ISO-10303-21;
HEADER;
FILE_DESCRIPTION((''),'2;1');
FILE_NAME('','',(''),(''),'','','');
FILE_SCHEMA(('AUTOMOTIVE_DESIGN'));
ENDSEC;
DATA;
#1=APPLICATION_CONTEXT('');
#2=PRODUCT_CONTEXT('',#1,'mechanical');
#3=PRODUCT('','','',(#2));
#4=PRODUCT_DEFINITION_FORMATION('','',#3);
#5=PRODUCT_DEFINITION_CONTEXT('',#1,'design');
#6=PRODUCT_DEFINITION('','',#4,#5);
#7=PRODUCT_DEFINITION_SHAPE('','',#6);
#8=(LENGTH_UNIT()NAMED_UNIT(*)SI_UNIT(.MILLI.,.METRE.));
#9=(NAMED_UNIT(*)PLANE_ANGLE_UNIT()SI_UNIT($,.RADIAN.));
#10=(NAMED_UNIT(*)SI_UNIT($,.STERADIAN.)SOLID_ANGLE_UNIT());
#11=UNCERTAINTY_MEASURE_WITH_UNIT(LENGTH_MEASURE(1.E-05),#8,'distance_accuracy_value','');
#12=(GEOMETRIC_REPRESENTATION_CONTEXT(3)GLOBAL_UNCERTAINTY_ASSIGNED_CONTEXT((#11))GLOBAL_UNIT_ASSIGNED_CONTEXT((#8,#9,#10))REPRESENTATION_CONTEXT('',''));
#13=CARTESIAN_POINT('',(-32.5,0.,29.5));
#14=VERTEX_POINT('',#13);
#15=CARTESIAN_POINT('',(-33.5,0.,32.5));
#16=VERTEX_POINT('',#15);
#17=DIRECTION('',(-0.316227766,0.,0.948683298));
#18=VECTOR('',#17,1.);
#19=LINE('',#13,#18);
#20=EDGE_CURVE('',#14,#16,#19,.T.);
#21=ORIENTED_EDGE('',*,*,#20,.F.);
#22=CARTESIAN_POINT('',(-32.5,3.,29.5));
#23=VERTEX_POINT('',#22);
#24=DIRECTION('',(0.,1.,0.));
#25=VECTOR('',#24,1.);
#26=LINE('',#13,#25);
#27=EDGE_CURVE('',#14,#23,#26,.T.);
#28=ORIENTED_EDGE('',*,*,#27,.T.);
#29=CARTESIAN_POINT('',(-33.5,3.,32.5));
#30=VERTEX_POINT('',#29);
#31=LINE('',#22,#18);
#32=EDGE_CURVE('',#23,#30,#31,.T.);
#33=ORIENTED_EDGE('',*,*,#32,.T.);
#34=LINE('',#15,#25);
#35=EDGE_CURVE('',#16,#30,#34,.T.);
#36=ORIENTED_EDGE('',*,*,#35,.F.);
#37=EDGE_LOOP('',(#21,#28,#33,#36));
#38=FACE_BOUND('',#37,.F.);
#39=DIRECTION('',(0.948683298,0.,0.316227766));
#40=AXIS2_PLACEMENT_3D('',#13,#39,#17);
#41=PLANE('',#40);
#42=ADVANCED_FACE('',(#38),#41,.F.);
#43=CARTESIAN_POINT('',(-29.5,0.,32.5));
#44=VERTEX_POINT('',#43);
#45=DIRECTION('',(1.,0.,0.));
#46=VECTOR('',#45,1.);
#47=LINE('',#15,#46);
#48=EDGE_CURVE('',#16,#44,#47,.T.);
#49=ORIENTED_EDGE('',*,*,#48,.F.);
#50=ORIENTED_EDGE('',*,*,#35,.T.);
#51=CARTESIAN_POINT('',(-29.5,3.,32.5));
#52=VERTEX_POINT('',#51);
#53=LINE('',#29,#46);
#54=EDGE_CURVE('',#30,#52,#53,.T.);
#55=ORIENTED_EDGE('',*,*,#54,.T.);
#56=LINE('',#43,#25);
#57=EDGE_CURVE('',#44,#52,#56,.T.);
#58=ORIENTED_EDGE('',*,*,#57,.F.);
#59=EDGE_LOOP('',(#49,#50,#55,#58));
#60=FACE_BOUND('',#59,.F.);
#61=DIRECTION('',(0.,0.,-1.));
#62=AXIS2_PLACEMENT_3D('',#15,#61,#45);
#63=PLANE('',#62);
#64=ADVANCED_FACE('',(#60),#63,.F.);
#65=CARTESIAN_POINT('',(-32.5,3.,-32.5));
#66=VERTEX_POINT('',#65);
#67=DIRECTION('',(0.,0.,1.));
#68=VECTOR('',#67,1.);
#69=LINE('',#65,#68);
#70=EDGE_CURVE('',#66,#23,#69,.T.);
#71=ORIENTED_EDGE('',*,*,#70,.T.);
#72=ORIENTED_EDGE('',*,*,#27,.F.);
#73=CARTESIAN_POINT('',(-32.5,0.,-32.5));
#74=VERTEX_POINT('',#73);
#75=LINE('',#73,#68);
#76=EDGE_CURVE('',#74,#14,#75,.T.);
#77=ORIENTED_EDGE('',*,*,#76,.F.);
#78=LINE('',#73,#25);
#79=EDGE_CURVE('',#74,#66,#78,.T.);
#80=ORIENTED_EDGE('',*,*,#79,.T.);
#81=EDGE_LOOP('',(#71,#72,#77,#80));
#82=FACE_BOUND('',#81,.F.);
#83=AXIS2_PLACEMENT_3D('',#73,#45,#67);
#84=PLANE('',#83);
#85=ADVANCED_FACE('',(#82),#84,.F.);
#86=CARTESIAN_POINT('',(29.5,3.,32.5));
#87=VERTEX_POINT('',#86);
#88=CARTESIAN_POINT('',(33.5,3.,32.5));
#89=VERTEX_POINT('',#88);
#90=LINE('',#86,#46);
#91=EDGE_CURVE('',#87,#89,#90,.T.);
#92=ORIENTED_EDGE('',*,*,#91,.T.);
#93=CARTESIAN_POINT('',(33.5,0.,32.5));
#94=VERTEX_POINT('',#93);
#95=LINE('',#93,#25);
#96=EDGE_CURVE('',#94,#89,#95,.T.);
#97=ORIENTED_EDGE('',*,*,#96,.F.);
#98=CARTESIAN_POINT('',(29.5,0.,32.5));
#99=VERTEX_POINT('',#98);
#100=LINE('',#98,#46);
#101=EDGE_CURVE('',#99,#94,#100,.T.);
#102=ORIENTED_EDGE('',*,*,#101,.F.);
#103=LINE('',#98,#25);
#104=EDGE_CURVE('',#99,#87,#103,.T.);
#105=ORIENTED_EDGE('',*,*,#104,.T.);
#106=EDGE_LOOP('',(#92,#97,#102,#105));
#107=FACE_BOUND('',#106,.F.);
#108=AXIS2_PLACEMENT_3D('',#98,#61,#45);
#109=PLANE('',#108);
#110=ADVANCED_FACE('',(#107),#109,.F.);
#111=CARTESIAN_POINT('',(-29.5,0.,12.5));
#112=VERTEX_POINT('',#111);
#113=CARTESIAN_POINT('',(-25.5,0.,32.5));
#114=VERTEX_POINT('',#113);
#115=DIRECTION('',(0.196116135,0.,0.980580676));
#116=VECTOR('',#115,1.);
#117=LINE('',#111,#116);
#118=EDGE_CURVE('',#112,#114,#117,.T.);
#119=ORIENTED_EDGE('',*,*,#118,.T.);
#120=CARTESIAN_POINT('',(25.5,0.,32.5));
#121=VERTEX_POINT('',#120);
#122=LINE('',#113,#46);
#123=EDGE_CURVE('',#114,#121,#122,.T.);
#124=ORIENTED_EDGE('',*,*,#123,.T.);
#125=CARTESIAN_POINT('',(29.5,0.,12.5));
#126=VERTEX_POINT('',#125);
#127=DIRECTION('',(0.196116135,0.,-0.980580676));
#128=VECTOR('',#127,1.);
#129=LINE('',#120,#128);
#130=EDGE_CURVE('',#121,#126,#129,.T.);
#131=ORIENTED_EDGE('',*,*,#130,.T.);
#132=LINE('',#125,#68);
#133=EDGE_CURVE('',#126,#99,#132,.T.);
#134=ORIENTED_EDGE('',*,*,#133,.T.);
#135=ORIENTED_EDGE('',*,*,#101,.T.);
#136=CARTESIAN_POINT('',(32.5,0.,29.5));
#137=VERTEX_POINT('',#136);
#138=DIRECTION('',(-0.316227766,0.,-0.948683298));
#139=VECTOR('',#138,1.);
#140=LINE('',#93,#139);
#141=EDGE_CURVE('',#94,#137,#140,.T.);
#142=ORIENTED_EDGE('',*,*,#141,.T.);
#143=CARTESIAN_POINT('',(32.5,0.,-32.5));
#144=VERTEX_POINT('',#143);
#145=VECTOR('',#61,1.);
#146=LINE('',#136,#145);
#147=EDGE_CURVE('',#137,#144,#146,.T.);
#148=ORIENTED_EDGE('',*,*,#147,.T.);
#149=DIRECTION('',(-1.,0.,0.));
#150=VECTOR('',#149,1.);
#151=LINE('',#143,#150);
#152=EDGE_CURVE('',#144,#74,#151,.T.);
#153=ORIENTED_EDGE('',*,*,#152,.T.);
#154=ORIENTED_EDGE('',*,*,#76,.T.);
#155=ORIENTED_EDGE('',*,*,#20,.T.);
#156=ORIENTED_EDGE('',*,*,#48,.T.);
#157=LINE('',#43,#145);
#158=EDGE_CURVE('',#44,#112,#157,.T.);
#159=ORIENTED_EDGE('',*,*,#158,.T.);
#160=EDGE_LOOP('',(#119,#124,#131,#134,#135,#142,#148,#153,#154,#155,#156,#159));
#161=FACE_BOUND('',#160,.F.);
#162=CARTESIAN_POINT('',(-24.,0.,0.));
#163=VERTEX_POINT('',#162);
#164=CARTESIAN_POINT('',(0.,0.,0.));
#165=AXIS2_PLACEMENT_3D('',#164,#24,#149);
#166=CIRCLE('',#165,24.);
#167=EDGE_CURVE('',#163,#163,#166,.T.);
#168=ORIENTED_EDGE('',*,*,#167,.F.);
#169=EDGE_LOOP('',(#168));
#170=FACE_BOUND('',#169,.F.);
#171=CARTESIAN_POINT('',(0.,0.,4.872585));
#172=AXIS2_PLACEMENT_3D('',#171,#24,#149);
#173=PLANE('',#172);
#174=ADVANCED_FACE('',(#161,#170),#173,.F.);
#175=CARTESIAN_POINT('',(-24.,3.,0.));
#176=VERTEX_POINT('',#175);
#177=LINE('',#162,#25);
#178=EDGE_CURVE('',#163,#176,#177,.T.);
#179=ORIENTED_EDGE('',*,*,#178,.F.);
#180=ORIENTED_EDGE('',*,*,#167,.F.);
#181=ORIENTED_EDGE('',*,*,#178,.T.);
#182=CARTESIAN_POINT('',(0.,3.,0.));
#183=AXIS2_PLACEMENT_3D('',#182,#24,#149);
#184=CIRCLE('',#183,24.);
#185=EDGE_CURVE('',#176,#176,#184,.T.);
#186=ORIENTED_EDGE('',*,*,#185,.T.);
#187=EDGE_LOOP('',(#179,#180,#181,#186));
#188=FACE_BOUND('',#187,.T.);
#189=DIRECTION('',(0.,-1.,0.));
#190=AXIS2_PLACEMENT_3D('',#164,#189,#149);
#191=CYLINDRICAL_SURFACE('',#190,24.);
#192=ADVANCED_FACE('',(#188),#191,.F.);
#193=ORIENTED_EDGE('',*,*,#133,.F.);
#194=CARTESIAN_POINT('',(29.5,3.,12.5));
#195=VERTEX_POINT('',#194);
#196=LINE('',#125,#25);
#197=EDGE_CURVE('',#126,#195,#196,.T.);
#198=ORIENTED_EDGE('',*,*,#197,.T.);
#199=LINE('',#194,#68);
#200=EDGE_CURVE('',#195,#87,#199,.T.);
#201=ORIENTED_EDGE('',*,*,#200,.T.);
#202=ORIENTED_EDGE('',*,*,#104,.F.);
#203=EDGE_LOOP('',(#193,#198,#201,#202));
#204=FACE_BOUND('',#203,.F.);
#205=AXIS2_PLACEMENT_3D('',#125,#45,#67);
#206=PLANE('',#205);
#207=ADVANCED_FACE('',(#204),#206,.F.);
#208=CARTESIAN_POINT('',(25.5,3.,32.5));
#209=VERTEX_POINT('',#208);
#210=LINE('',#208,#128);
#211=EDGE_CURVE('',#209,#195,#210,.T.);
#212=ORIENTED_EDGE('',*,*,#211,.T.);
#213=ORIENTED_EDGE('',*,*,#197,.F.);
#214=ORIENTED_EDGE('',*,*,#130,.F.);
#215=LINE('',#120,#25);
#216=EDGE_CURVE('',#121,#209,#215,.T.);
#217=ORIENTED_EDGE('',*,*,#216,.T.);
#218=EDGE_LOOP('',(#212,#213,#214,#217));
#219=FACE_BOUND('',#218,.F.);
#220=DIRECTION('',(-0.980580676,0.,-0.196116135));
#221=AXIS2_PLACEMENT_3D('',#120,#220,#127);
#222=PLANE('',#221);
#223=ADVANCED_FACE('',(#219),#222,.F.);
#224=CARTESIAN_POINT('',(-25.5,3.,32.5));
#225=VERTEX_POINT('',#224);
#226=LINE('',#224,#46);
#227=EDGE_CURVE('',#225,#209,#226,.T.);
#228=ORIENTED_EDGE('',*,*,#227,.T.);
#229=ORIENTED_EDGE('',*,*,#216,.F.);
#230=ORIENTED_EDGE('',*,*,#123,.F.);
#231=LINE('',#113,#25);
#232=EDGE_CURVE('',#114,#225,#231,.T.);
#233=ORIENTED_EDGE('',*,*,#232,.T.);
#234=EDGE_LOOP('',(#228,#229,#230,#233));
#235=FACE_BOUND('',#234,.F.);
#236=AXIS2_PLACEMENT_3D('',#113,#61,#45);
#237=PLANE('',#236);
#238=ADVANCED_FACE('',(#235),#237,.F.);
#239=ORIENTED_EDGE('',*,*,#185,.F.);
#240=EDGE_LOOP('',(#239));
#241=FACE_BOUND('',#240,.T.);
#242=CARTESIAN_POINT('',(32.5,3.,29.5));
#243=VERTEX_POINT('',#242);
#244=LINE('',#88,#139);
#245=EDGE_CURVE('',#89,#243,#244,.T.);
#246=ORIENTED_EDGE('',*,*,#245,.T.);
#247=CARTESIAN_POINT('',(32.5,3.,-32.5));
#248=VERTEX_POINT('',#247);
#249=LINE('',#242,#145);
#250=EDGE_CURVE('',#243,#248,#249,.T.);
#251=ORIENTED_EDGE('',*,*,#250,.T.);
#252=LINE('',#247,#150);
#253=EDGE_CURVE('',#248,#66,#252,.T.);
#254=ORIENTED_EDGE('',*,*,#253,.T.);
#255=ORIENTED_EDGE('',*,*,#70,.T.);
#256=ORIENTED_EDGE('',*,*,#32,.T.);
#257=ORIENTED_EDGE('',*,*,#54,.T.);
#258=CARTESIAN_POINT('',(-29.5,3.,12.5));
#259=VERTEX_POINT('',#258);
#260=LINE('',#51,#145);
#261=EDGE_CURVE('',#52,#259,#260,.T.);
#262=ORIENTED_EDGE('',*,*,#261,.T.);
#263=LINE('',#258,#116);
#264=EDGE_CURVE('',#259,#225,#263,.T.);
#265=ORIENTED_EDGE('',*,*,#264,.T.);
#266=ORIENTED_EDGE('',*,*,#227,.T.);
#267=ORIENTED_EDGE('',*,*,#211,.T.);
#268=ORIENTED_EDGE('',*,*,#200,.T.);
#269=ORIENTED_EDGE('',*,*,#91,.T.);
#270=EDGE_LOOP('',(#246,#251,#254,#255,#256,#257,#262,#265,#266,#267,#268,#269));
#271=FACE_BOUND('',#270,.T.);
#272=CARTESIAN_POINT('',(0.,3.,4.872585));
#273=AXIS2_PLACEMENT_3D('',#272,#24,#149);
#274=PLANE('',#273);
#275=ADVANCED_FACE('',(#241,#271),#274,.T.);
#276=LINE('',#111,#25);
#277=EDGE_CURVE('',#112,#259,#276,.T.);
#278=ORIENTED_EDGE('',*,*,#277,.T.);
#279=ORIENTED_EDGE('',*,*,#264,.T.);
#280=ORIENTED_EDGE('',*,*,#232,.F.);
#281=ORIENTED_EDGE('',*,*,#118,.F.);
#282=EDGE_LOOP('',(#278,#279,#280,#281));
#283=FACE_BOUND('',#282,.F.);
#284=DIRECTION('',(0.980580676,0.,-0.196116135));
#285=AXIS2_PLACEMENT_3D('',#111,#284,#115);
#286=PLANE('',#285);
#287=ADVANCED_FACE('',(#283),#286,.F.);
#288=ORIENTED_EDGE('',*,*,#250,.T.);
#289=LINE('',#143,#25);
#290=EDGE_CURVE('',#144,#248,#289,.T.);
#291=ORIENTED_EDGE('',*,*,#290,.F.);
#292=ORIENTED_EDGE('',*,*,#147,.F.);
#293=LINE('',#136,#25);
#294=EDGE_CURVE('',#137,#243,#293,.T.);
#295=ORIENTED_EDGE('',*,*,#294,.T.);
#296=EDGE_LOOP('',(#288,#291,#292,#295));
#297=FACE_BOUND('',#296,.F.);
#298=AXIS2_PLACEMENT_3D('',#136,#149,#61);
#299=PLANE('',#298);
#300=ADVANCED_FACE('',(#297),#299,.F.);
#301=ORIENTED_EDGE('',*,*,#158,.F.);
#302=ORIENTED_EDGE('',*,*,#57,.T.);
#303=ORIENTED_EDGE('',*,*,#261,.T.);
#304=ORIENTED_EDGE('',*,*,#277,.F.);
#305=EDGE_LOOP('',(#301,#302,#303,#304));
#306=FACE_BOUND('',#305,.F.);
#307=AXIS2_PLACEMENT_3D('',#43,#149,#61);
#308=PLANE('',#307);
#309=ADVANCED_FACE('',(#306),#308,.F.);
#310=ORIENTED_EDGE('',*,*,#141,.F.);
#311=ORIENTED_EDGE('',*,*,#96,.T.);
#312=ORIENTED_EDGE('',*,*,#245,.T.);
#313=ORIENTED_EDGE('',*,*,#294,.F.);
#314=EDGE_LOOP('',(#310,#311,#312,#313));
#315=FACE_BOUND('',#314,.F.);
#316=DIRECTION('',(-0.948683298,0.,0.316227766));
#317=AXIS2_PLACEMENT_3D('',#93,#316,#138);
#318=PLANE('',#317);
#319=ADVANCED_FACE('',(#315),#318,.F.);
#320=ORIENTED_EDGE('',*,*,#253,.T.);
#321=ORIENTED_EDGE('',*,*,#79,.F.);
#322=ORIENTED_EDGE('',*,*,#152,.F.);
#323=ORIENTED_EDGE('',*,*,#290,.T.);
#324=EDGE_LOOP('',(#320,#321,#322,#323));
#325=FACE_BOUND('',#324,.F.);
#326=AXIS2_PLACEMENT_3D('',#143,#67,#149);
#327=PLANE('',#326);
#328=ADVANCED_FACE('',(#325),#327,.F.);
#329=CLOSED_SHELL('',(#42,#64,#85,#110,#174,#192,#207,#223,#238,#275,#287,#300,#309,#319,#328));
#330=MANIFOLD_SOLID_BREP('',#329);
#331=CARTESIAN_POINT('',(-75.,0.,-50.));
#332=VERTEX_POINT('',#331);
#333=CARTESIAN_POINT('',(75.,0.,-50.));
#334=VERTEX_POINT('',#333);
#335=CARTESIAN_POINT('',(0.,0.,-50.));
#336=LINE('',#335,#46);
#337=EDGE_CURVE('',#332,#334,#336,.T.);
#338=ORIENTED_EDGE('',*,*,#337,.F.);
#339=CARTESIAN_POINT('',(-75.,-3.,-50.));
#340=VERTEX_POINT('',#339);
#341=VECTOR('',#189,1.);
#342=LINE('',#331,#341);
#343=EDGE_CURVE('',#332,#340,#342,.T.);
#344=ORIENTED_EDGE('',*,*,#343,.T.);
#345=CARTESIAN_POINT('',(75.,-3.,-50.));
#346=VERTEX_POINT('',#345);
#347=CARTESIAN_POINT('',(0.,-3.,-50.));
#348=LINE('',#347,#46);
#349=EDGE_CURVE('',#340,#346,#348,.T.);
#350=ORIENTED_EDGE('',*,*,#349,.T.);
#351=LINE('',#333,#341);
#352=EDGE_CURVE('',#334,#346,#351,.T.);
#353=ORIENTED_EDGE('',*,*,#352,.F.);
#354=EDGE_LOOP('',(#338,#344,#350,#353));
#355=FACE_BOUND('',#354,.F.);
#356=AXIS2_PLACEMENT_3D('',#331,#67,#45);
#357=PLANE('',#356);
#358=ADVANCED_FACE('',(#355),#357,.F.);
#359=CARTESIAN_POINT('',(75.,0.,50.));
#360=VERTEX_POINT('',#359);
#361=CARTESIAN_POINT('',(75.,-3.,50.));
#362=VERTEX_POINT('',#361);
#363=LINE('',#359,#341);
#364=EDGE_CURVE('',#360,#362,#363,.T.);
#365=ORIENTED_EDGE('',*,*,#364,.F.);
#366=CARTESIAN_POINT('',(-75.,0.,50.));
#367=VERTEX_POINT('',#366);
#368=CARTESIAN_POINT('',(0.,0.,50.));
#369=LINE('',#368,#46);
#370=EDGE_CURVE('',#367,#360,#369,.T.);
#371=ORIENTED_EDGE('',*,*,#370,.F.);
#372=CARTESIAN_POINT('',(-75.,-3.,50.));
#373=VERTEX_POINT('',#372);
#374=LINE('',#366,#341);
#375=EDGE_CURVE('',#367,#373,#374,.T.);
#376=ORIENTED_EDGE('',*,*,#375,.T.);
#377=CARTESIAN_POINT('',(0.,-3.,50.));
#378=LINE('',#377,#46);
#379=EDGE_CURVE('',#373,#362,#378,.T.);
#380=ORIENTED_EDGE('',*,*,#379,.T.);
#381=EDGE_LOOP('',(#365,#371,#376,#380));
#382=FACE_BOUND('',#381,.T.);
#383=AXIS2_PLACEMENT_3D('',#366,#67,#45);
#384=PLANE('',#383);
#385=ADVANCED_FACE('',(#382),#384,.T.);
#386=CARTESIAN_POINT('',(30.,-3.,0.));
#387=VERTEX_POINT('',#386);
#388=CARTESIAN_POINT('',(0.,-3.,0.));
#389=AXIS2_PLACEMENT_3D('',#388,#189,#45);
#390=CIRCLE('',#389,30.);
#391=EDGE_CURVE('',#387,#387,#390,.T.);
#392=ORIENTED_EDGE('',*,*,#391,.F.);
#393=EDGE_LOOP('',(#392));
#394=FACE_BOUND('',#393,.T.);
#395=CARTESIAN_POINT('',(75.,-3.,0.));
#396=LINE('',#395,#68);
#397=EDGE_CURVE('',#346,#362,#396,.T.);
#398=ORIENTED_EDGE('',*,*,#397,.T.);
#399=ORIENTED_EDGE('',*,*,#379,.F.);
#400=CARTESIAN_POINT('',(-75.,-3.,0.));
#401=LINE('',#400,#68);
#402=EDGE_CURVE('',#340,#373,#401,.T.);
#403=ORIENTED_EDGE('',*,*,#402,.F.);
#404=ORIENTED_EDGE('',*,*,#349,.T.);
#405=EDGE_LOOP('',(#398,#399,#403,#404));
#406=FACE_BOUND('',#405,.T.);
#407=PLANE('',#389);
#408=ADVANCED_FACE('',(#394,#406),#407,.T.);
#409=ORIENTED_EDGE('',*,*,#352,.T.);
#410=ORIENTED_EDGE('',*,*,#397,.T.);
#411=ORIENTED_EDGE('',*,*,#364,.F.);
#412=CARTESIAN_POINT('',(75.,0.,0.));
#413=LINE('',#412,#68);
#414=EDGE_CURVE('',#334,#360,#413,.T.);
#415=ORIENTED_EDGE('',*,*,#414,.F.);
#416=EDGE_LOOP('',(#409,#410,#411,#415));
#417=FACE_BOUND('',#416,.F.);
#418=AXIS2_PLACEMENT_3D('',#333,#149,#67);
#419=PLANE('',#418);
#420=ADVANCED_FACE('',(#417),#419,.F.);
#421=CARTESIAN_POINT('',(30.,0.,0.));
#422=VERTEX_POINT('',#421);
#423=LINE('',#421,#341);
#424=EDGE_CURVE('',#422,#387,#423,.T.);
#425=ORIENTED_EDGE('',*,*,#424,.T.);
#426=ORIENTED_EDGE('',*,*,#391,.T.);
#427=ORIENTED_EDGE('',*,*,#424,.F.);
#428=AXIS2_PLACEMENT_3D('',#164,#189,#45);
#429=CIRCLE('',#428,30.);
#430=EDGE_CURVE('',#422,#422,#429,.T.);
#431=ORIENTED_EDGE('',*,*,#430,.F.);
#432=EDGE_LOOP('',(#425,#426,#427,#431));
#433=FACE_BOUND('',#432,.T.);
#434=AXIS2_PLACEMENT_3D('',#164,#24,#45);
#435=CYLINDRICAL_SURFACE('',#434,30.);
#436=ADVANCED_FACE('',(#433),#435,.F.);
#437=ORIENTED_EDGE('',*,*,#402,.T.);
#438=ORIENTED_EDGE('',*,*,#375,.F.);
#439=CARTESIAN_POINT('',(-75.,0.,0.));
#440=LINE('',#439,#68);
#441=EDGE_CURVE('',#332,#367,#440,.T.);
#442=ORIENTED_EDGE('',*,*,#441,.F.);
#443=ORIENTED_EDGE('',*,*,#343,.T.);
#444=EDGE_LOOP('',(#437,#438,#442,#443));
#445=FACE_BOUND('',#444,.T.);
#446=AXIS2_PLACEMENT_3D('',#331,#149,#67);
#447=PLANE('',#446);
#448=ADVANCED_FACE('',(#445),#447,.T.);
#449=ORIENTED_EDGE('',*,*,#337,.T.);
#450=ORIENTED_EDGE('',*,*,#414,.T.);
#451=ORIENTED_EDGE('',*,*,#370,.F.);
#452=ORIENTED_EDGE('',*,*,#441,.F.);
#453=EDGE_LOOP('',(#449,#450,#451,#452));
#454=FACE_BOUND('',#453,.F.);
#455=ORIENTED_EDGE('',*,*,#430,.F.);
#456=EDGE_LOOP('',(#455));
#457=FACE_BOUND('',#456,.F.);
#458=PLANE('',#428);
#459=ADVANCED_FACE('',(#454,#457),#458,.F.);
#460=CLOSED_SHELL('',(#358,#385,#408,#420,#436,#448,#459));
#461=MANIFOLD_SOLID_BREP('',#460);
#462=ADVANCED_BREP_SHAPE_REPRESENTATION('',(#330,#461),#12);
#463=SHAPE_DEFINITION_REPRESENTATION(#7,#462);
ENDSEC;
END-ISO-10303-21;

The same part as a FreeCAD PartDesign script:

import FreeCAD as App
import Part
import Sketcher

V = App.Vector
Q = App.Units.Quantity

doc = App.newDocument("Part")
body = doc.addObject("PartDesign::Body", "Body")

# Sketch on XZ plane
sketch1 = body.newObject("Sketcher::SketchObject", "Sketch")
sketch1.AttachmentSupport = (doc.getObject("XZ_Plane"), [""])
sketch1.MapMode = "FlatFace"
sketch1.addGeometry([
    Part.LineSegment(V(-75, 50, 0), V(-75, -50, 0)),  # 0
    Part.LineSegment(V(-75, -50, 0), V(75, -50, 0)),  # 1
    Part.LineSegment(V(75, -50, 0), V(75, 50, 0)),  # 2
    Part.LineSegment(V(75, 50, 0), V(-75, 50, 0)),  # 3
    Part.Circle(V(0, 0, 0), V(0, 0, 1), 30),  # 4
], False)
sketch1.addConstraint([
    Sketcher.Constraint("Coincident", 0, 2, 1, 1),
    Sketcher.Constraint("Coincident", 1, 2, 2, 1),
    Sketcher.Constraint("Coincident", 2, 2, 3, 1),
    Sketcher.Constraint("Coincident", 3, 2, 0, 1),
    Sketcher.Constraint("Vertical", 0),
    Sketcher.Constraint("Horizontal", 1),
    Sketcher.Constraint("Vertical", 2),
    Sketcher.Constraint("Horizontal", 3),
    Sketcher.Constraint("Coincident", 4, 3, -1, 1),
    Sketcher.Constraint("Symmetric", 0, 2, 2, 2, -1, 1),
    Sketcher.Constraint("Diameter", 4, Q("60 mm")),
    Sketcher.Constraint("DistanceX", 1, 1, 1, 2, Q("150 mm")),
    Sketcher.Constraint("DistanceY", 0, 2, 0, 1, Q("100 mm")),
])
pad1 = body.newObject("PartDesign::Pad", "Pad")
pad1.Profile = sketch1
pad1.Length = 3
body2 = doc.addObject("PartDesign::Body", "Body001")

# Sketch on XZ plane
sketch2 = body2.newObject("Sketcher::SketchObject", "Sketch001")
sketch2.AttachmentSupport = (doc.getObject("XZ_Plane001"), [""])
sketch2.MapMode = "FlatFace"
sketch2.addGeometry([
    Part.LineSegment(V(29.5, 32.5, 0), V(33.5, 32.5, 0)),  # 0
    Part.LineSegment(V(33.5, 32.5, 0), V(32.5, 29.5, 0)),  # 1
    Part.LineSegment(V(32.5, 29.5, 0), V(32.5, -32.5, 0)),  # 2
    Part.LineSegment(V(32.5, -32.5, 0), V(-32.5, -32.5, 0)),  # 3
    Part.LineSegment(V(-32.5, -32.5, 0), V(-32.5, 29.5, 0)),  # 4
    Part.LineSegment(V(-32.5, 29.5, 0), V(-33.5, 32.5, 0)),  # 5
    Part.LineSegment(V(-33.5, 32.5, 0), V(-29.5, 32.5, 0)),  # 6
    Part.LineSegment(V(-29.5, 32.5, 0), V(-29.5, 12.5, 0)),  # 7
    Part.LineSegment(V(-29.5, 12.5, 0), V(-25.5, 32.5, 0)),  # 8
    Part.LineSegment(V(-25.5, 32.5, 0), V(25.5, 32.5, 0)),  # 9
    Part.LineSegment(V(25.5, 32.5, 0), V(29.5, 12.5, 0)),  # 10
    Part.LineSegment(V(29.5, 12.5, 0), V(29.5, 32.5, 0)),  # 11
    Part.Circle(V(0, 0, 0), V(0, 0, 1), 24),  # 12
], False)
sketch2.addConstraint([
    Sketcher.Constraint("Coincident", 0, 2, 1, 1),
    Sketcher.Constraint("Coincident", 1, 2, 2, 1),
    Sketcher.Constraint("Coincident", 2, 2, 3, 1),
    Sketcher.Constraint("Coincident", 3, 2, 4, 1),
    Sketcher.Constraint("Coincident", 4, 2, 5, 1),
    Sketcher.Constraint("Coincident", 5, 2, 6, 1),
    Sketcher.Constraint("Coincident", 6, 2, 7, 1),
    Sketcher.Constraint("Coincident", 7, 2, 8, 1),
    Sketcher.Constraint("Coincident", 8, 2, 9, 1),
    Sketcher.Constraint("Coincident", 9, 2, 10, 1),
    Sketcher.Constraint("Coincident", 10, 2, 11, 1),
    Sketcher.Constraint("Coincident", 11, 2, 0, 1),
    Sketcher.Constraint("Horizontal", 0),
    Sketcher.Constraint("Vertical", 2),
    Sketcher.Constraint("Horizontal", 3),
    Sketcher.Constraint("Vertical", 4),
    Sketcher.Constraint("Horizontal", 6),
    Sketcher.Constraint("Vertical", 7),
    Sketcher.Constraint("Horizontal", 9),
    Sketcher.Constraint("Vertical", 11),
    Sketcher.Constraint("Coincident", 12, 3, -1, 1),
    Sketcher.Constraint("Symmetric", 1, 2, 4, 2, -2),
    Sketcher.Constraint("Symmetric", 0, 2, 5, 2, -2),
    Sketcher.Constraint("Symmetric", 7, 2, 10, 2, -2),
    Sketcher.Constraint("Horizontal", 6, 2, 8, 2),
    Sketcher.Constraint("Equal", 8, 10),
    Sketcher.Constraint("Diameter", 12, Q("48 mm")),
    Sketcher.Constraint("DistanceX", 0, 1, 0, 2, Q("4 mm")),
    Sketcher.Constraint("DistanceX", 3, 2, 3, 1, Q("65 mm")),
    Sketcher.Constraint("DistanceX", 9, 1, 9, 2, Q("51 mm")),
    Sketcher.Constraint("DistanceY", 2, 2, 2, 1, Q("62 mm")),
    Sketcher.Constraint("DistanceY", 7, 2, 7, 1, Q("20 mm")),
    Sketcher.Constraint("DistanceX", 1, 2, 0, 2, Q("1 mm")),
    Sketcher.Constraint("DistanceY", 1, 2, 0, 2, Q("3 mm")),
    Sketcher.Constraint("DistanceY", -1, 1, 0, 2, Q("32.5 mm")),
])
pad2 = body2.newObject("PartDesign::Pad", "Pad001")
pad2.Profile = sketch2
pad2.Length = 3
pad2.Reversed = True

doc.recompute()
